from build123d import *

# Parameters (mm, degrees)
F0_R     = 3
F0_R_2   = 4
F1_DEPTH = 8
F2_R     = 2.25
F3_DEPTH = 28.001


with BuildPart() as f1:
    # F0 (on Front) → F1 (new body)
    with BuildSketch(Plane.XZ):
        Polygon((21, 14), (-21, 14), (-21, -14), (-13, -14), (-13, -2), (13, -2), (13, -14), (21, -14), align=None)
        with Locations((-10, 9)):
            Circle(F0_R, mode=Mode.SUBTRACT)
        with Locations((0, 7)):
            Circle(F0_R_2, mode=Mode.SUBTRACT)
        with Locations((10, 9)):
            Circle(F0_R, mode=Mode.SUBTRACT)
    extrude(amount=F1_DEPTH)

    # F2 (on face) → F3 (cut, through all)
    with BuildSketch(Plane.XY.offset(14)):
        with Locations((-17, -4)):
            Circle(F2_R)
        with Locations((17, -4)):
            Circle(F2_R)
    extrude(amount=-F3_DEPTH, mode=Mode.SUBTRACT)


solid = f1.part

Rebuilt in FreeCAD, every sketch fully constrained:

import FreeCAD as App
import Part
import Sketcher

V = App.Vector

doc = App.newDocument("Part")
body = doc.addObject("PartDesign::Body", "Body")

# Sketch on XZ plane
sketch1 = doc.addObject("Sketcher::SketchObject", "Sketch")
body.addObject(sketch1)
sketch1.AttachmentSupport = (doc.XZ_Plane, [""])
sketch1.MapMode = "FlatFace"
sketch1.addGeometry([
    Part.LineSegment(V(21, 14, 0), V(-21, 14, 0)),  # 0
    Part.LineSegment(V(-21, 14, 0), V(-21, -14, 0)),  # 1
    Part.LineSegment(V(-21, -14, 0), V(-13, -14, 0)),  # 2
    Part.LineSegment(V(-13, -14, 0), V(-13, -2, 0)),  # 3
    Part.LineSegment(V(-13, -2, 0), V(13, -2, 0)),  # 4
    Part.LineSegment(V(13, -2, 0), V(13, -14, 0)),  # 5
    Part.LineSegment(V(13, -14, 0), V(21, -14, 0)),  # 6
    Part.LineSegment(V(21, -14, 0), V(21, 14, 0)),  # 7
    Part.Circle(V(0, 7, 0), V(0, 0, 1), 4),  # 8
    Part.Circle(V(-10, 9, 0), V(0, 0, 1), 3),  # 9
    Part.Circle(V(10, 9, 0), V(0, 0, 1), 3),  # 10
], False)
sketch1.addConstraint([
    Sketcher.Constraint("Coincident", 0, 2, 1, 1),
    Sketcher.Constraint("Coincident", 1, 2, 2, 1),
    Sketcher.Constraint("Coincident", 2, 2, 3, 1),
    Sketcher.Constraint("Coincident", 3, 2, 4, 1),
    Sketcher.Constraint("Coincident", 4, 2, 5, 1),
    Sketcher.Constraint("Coincident", 5, 2, 6, 1),
    Sketcher.Constraint("Coincident", 6, 2, 7, 1),
    Sketcher.Constraint("Coincident", 7, 2, 0, 1),
    Sketcher.Constraint("Horizontal", 0),
    Sketcher.Constraint("Vertical", 1),
    Sketcher.Constraint("Horizontal", 2),
    Sketcher.Constraint("Vertical", 3),
    Sketcher.Constraint("Horizontal", 4),
    Sketcher.Constraint("Vertical", 5),
    Sketcher.Constraint("Horizontal", 6),
    Sketcher.Constraint("Vertical", 7),
    Sketcher.Constraint("Equal", 9, 10),
    Sketcher.Constraint("Symmetric", 0, 2, 6, 2, -1, 1),
    Sketcher.Constraint("Symmetric", 9, 3, 10, 3, -2),
    Sketcher.Constraint("Symmetric", 2, 2, 5, 2, -2),
    Sketcher.Constraint("PointOnObject", 8, 3, -2),
    Sketcher.Constraint("Diameter", 8, 8.0),
    Sketcher.Constraint("Diameter", 9, 6.0),
    Sketcher.Constraint("DistanceX", 0, 2, 0, 1, 42.0),
    Sketcher.Constraint("DistanceX", 2, 1, 2, 2, 8.0),
    Sketcher.Constraint("DistanceY", 1, 2, 1, 1, 28.0),
    Sketcher.Constraint("DistanceY", 3, 1, 3, 2, 12.0),
    Sketcher.Constraint("DistanceY", -1, 1, 8, 3, 7.0),
    Sketcher.Constraint("DistanceX", 9, 3, -1, 1, 10.0),
    Sketcher.Constraint("DistanceY", -1, 1, 9, 3, 9.0),
])
pad1 = doc.addObject("PartDesign::Pad", "Pad")
body.addObject(pad1)
pad1.Profile = sketch1
pad1.Length = 8

# Sketch on XY plane
sketch2 = doc.addObject("Sketcher::SketchObject", "Sketch001")
body.addObject(sketch2)
sketch2.AttachmentSupport = (doc.XY_Plane, [""])
sketch2.MapMode = "FlatFace"
sketch2.AttachmentOffset = App.Placement(V(0, 0, 14), App.Rotation())
sketch2.addGeometry([
    Part.Circle(V(-17, -4, 0), V(0, 0, 1), 2.25),
    Part.Circle(V(17, -4, 0), V(0, 0, 1), 2.25),
], False)
sketch2.addConstraint([
    Sketcher.Constraint("Equal", 0, 1),
    Sketcher.Constraint("Symmetric", 0, 3, 1, 3, -2),
    Sketcher.Constraint("Diameter", 0, 4.5),
    Sketcher.Constraint("DistanceX", 0, 3, -1, 1, 17.0),
    Sketcher.Constraint("DistanceY", 0, 3, -1, 1, 4.0),
])
pocket1 = doc.addObject("PartDesign::Pocket", "Pocket")
body.addObject(pocket1)
pocket1.Profile = sketch2
pocket1.Type = "ThroughAll"

doc.recompute()
